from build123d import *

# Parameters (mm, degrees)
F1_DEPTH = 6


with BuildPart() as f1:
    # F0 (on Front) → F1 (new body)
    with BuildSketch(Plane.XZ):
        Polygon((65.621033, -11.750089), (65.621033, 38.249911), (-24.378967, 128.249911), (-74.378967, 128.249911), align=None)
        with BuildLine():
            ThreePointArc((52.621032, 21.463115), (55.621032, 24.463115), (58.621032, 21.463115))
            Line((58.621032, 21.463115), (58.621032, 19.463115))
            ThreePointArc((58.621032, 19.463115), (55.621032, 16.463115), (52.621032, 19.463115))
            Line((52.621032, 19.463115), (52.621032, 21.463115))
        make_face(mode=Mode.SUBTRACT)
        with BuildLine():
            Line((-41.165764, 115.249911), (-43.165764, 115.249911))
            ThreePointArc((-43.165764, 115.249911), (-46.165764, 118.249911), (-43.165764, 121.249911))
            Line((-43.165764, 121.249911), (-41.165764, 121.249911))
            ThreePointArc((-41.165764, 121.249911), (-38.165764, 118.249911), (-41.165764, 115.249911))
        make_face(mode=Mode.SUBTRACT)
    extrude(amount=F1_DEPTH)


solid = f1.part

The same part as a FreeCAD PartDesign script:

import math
import FreeCAD as App
import Part
import Sketcher

V = App.Vector


def add_polygon(sketch, points):
    """Adds a closed chain of lines whose ends are joined by coincident constraints."""
    first, n = sketch.GeometryCount, len(points)
    for a, b in zip(points, points[1:] + points[:1]):
        sketch.addGeometry(Part.LineSegment(App.Vector(*a, 0), App.Vector(*b, 0)), False)
    for i in range(n):
        sketch.addConstraint(Sketcher.Constraint("Coincident", first + i, 2, first + (i + 1) % n, 1))

doc = App.newDocument("Part")
params = doc.addObject("Spreadsheet::Sheet", "Params")
for row, (alias, value) in enumerate([
    ("sketch1_radius", "3 mm"),
    ("sketch1_width", "50 mm"),
    ("sketch1_width2", "2 mm"),
    ("pad1_length", "6 mm"),
], start=1):
    params.set(f"A{row}", alias)
    params.set(f"B{row}", "=" + value)
    params.setAlias(f"B{row}", alias)

body = doc.addObject("PartDesign::Body", "Body")

sketch1 = doc.addObject("Sketcher::SketchObject", "Sketch")
body.addObject(sketch1)
sketch1.AttachmentSupport = (doc.XZ_Plane, [""])
sketch1.MapMode = "FlatFace"
add_polygon(sketch1, [(65.6, -11.8), (65.6, 38.2), (-24.4, 128.2), (-74.4, 128.2)])
sketch1.addGeometry(Part.LineSegment(V(52.6, 19.5, 0), V(52.6, 21.5, 0)), False)
sketch1.addGeometry(Part.ArcOfCircle(Part.Circle(V(55.6, 21.5, 0), V(0, 0, 1), 3), math.radians(0), math.radians(180)), False)
sketch1.addGeometry(Part.LineSegment(V(58.6, 21.5, 0), V(58.6, 19.5, 0)), False)
sketch1.addGeometry(Part.ArcOfCircle(Part.Circle(V(55.6, 19.5, 0), V(0, 0, 1), 3), math.radians(180), math.radians(360)), False)
sketch1.addGeometry(Part.ArcOfCircle(Part.Circle(V(-41.2, 118.2, 0), V(0, 0, 1), 3), math.radians(-90), math.radians(90)), False)
sketch1.addGeometry(Part.LineSegment(V(-41.2, 115.2, 0), V(-43.2, 115.2, 0)), False)
sketch1.addGeometry(Part.ArcOfCircle(Part.Circle(V(-43.2, 118.2, 0), V(0, 0, 1), 3), math.radians(90), math.radians(270)), False)
sketch1.addGeometry(Part.LineSegment(V(-43.2, 121.2, 0), V(-41.2, 121.2, 0)), False)
sketch1.addConstraint(Sketcher.Constraint("Tangent", 4, 2, 5, 2))
sketch1.addConstraint(Sketcher.Constraint("Tangent", 5, 1, 6, 1))
sketch1.addConstraint(Sketcher.Constraint("Tangent", 6, 2, 7, 2))
sketch1.addConstraint(Sketcher.Constraint("Tangent", 7, 1, 4, 1))
sketch1.addConstraint(Sketcher.Constraint("Tangent", 8, 1, 9, 1))
sketch1.addConstraint(Sketcher.Constraint("Tangent", 9, 2, 10, 2))
sketch1.addConstraint(Sketcher.Constraint("Tangent", 10, 1, 11, 1))
sketch1.addConstraint(Sketcher.Constraint("Tangent", 11, 2, 8, 2))
sketch1.addConstraint(Sketcher.Constraint("Vertical", 0))
sketch1.addConstraint(Sketcher.Constraint("Horizontal", 2))
sketch1.addConstraint(Sketcher.Constraint("Vertical", 4))
sketch1.addConstraint(Sketcher.Constraint("Vertical", 6))
sketch1.addConstraint(Sketcher.Constraint("Horizontal", 9))
sketch1.addConstraint(Sketcher.Constraint("Horizontal", 11))
sketch1.addConstraint(Sketcher.Constraint("Equal", 7, 8))
sketch1.addConstraint(Sketcher.Constraint("Parallel", 1, 3))
sketch1.addConstraint(Sketcher.Constraint("Equal", 2, 0))
sketch1.addConstraint(Sketcher.Constraint("Equal", 11, 4))
sketch1.addConstraint(Sketcher.Constraint("Radius", 5, 3.0))
sketch1.addConstraint(Sketcher.Constraint("DistanceX", 2, 2, 2, 1, 50.0))
sketch1.addConstraint(Sketcher.Constraint("DistanceX", 9, 2, 9, 1, 2.0))
sketch1.addConstraint(Sketcher.Constraint("DistanceX", 5, 3, 0, 2, 10.000001))
sketch1.addConstraint(Sketcher.Constraint("DistanceY", 0, 2, 8, 3, 80.0))
sketch1.addConstraint(Sketcher.Constraint("DistanceY", 8, 3, 1, 2, 10.0))
sketch1.addConstraint(Sketcher.Constraint("DistanceY", -1, 1, 8, 3, 118.249911))
sketch1.addConstraint(Sketcher.Constraint("DistanceX", -1, 1, 5, 3, 55.621032))
sketch1.addConstraint(Sketcher.Constraint("DistanceY", -1, 1, 5, 3, 21.463115))
sketch1.addConstraint(Sketcher.Constraint("DistanceX", 8, 3, -1, 1, 41.165764))
sketch1.setExpression("Constraints[22]", "Params.sketch1_radius")
sketch1.setExpression("Constraints[23]", "Params.sketch1_width")
sketch1.setExpression("Constraints[24]", "Params.sketch1_width2")
pad1 = doc.addObject("PartDesign::Pad", "Pad")
body.addObject(pad1)
pad1.Profile = sketch1
pad1.setExpression("Length", "Params.pad1_length")

doc.recompute()
